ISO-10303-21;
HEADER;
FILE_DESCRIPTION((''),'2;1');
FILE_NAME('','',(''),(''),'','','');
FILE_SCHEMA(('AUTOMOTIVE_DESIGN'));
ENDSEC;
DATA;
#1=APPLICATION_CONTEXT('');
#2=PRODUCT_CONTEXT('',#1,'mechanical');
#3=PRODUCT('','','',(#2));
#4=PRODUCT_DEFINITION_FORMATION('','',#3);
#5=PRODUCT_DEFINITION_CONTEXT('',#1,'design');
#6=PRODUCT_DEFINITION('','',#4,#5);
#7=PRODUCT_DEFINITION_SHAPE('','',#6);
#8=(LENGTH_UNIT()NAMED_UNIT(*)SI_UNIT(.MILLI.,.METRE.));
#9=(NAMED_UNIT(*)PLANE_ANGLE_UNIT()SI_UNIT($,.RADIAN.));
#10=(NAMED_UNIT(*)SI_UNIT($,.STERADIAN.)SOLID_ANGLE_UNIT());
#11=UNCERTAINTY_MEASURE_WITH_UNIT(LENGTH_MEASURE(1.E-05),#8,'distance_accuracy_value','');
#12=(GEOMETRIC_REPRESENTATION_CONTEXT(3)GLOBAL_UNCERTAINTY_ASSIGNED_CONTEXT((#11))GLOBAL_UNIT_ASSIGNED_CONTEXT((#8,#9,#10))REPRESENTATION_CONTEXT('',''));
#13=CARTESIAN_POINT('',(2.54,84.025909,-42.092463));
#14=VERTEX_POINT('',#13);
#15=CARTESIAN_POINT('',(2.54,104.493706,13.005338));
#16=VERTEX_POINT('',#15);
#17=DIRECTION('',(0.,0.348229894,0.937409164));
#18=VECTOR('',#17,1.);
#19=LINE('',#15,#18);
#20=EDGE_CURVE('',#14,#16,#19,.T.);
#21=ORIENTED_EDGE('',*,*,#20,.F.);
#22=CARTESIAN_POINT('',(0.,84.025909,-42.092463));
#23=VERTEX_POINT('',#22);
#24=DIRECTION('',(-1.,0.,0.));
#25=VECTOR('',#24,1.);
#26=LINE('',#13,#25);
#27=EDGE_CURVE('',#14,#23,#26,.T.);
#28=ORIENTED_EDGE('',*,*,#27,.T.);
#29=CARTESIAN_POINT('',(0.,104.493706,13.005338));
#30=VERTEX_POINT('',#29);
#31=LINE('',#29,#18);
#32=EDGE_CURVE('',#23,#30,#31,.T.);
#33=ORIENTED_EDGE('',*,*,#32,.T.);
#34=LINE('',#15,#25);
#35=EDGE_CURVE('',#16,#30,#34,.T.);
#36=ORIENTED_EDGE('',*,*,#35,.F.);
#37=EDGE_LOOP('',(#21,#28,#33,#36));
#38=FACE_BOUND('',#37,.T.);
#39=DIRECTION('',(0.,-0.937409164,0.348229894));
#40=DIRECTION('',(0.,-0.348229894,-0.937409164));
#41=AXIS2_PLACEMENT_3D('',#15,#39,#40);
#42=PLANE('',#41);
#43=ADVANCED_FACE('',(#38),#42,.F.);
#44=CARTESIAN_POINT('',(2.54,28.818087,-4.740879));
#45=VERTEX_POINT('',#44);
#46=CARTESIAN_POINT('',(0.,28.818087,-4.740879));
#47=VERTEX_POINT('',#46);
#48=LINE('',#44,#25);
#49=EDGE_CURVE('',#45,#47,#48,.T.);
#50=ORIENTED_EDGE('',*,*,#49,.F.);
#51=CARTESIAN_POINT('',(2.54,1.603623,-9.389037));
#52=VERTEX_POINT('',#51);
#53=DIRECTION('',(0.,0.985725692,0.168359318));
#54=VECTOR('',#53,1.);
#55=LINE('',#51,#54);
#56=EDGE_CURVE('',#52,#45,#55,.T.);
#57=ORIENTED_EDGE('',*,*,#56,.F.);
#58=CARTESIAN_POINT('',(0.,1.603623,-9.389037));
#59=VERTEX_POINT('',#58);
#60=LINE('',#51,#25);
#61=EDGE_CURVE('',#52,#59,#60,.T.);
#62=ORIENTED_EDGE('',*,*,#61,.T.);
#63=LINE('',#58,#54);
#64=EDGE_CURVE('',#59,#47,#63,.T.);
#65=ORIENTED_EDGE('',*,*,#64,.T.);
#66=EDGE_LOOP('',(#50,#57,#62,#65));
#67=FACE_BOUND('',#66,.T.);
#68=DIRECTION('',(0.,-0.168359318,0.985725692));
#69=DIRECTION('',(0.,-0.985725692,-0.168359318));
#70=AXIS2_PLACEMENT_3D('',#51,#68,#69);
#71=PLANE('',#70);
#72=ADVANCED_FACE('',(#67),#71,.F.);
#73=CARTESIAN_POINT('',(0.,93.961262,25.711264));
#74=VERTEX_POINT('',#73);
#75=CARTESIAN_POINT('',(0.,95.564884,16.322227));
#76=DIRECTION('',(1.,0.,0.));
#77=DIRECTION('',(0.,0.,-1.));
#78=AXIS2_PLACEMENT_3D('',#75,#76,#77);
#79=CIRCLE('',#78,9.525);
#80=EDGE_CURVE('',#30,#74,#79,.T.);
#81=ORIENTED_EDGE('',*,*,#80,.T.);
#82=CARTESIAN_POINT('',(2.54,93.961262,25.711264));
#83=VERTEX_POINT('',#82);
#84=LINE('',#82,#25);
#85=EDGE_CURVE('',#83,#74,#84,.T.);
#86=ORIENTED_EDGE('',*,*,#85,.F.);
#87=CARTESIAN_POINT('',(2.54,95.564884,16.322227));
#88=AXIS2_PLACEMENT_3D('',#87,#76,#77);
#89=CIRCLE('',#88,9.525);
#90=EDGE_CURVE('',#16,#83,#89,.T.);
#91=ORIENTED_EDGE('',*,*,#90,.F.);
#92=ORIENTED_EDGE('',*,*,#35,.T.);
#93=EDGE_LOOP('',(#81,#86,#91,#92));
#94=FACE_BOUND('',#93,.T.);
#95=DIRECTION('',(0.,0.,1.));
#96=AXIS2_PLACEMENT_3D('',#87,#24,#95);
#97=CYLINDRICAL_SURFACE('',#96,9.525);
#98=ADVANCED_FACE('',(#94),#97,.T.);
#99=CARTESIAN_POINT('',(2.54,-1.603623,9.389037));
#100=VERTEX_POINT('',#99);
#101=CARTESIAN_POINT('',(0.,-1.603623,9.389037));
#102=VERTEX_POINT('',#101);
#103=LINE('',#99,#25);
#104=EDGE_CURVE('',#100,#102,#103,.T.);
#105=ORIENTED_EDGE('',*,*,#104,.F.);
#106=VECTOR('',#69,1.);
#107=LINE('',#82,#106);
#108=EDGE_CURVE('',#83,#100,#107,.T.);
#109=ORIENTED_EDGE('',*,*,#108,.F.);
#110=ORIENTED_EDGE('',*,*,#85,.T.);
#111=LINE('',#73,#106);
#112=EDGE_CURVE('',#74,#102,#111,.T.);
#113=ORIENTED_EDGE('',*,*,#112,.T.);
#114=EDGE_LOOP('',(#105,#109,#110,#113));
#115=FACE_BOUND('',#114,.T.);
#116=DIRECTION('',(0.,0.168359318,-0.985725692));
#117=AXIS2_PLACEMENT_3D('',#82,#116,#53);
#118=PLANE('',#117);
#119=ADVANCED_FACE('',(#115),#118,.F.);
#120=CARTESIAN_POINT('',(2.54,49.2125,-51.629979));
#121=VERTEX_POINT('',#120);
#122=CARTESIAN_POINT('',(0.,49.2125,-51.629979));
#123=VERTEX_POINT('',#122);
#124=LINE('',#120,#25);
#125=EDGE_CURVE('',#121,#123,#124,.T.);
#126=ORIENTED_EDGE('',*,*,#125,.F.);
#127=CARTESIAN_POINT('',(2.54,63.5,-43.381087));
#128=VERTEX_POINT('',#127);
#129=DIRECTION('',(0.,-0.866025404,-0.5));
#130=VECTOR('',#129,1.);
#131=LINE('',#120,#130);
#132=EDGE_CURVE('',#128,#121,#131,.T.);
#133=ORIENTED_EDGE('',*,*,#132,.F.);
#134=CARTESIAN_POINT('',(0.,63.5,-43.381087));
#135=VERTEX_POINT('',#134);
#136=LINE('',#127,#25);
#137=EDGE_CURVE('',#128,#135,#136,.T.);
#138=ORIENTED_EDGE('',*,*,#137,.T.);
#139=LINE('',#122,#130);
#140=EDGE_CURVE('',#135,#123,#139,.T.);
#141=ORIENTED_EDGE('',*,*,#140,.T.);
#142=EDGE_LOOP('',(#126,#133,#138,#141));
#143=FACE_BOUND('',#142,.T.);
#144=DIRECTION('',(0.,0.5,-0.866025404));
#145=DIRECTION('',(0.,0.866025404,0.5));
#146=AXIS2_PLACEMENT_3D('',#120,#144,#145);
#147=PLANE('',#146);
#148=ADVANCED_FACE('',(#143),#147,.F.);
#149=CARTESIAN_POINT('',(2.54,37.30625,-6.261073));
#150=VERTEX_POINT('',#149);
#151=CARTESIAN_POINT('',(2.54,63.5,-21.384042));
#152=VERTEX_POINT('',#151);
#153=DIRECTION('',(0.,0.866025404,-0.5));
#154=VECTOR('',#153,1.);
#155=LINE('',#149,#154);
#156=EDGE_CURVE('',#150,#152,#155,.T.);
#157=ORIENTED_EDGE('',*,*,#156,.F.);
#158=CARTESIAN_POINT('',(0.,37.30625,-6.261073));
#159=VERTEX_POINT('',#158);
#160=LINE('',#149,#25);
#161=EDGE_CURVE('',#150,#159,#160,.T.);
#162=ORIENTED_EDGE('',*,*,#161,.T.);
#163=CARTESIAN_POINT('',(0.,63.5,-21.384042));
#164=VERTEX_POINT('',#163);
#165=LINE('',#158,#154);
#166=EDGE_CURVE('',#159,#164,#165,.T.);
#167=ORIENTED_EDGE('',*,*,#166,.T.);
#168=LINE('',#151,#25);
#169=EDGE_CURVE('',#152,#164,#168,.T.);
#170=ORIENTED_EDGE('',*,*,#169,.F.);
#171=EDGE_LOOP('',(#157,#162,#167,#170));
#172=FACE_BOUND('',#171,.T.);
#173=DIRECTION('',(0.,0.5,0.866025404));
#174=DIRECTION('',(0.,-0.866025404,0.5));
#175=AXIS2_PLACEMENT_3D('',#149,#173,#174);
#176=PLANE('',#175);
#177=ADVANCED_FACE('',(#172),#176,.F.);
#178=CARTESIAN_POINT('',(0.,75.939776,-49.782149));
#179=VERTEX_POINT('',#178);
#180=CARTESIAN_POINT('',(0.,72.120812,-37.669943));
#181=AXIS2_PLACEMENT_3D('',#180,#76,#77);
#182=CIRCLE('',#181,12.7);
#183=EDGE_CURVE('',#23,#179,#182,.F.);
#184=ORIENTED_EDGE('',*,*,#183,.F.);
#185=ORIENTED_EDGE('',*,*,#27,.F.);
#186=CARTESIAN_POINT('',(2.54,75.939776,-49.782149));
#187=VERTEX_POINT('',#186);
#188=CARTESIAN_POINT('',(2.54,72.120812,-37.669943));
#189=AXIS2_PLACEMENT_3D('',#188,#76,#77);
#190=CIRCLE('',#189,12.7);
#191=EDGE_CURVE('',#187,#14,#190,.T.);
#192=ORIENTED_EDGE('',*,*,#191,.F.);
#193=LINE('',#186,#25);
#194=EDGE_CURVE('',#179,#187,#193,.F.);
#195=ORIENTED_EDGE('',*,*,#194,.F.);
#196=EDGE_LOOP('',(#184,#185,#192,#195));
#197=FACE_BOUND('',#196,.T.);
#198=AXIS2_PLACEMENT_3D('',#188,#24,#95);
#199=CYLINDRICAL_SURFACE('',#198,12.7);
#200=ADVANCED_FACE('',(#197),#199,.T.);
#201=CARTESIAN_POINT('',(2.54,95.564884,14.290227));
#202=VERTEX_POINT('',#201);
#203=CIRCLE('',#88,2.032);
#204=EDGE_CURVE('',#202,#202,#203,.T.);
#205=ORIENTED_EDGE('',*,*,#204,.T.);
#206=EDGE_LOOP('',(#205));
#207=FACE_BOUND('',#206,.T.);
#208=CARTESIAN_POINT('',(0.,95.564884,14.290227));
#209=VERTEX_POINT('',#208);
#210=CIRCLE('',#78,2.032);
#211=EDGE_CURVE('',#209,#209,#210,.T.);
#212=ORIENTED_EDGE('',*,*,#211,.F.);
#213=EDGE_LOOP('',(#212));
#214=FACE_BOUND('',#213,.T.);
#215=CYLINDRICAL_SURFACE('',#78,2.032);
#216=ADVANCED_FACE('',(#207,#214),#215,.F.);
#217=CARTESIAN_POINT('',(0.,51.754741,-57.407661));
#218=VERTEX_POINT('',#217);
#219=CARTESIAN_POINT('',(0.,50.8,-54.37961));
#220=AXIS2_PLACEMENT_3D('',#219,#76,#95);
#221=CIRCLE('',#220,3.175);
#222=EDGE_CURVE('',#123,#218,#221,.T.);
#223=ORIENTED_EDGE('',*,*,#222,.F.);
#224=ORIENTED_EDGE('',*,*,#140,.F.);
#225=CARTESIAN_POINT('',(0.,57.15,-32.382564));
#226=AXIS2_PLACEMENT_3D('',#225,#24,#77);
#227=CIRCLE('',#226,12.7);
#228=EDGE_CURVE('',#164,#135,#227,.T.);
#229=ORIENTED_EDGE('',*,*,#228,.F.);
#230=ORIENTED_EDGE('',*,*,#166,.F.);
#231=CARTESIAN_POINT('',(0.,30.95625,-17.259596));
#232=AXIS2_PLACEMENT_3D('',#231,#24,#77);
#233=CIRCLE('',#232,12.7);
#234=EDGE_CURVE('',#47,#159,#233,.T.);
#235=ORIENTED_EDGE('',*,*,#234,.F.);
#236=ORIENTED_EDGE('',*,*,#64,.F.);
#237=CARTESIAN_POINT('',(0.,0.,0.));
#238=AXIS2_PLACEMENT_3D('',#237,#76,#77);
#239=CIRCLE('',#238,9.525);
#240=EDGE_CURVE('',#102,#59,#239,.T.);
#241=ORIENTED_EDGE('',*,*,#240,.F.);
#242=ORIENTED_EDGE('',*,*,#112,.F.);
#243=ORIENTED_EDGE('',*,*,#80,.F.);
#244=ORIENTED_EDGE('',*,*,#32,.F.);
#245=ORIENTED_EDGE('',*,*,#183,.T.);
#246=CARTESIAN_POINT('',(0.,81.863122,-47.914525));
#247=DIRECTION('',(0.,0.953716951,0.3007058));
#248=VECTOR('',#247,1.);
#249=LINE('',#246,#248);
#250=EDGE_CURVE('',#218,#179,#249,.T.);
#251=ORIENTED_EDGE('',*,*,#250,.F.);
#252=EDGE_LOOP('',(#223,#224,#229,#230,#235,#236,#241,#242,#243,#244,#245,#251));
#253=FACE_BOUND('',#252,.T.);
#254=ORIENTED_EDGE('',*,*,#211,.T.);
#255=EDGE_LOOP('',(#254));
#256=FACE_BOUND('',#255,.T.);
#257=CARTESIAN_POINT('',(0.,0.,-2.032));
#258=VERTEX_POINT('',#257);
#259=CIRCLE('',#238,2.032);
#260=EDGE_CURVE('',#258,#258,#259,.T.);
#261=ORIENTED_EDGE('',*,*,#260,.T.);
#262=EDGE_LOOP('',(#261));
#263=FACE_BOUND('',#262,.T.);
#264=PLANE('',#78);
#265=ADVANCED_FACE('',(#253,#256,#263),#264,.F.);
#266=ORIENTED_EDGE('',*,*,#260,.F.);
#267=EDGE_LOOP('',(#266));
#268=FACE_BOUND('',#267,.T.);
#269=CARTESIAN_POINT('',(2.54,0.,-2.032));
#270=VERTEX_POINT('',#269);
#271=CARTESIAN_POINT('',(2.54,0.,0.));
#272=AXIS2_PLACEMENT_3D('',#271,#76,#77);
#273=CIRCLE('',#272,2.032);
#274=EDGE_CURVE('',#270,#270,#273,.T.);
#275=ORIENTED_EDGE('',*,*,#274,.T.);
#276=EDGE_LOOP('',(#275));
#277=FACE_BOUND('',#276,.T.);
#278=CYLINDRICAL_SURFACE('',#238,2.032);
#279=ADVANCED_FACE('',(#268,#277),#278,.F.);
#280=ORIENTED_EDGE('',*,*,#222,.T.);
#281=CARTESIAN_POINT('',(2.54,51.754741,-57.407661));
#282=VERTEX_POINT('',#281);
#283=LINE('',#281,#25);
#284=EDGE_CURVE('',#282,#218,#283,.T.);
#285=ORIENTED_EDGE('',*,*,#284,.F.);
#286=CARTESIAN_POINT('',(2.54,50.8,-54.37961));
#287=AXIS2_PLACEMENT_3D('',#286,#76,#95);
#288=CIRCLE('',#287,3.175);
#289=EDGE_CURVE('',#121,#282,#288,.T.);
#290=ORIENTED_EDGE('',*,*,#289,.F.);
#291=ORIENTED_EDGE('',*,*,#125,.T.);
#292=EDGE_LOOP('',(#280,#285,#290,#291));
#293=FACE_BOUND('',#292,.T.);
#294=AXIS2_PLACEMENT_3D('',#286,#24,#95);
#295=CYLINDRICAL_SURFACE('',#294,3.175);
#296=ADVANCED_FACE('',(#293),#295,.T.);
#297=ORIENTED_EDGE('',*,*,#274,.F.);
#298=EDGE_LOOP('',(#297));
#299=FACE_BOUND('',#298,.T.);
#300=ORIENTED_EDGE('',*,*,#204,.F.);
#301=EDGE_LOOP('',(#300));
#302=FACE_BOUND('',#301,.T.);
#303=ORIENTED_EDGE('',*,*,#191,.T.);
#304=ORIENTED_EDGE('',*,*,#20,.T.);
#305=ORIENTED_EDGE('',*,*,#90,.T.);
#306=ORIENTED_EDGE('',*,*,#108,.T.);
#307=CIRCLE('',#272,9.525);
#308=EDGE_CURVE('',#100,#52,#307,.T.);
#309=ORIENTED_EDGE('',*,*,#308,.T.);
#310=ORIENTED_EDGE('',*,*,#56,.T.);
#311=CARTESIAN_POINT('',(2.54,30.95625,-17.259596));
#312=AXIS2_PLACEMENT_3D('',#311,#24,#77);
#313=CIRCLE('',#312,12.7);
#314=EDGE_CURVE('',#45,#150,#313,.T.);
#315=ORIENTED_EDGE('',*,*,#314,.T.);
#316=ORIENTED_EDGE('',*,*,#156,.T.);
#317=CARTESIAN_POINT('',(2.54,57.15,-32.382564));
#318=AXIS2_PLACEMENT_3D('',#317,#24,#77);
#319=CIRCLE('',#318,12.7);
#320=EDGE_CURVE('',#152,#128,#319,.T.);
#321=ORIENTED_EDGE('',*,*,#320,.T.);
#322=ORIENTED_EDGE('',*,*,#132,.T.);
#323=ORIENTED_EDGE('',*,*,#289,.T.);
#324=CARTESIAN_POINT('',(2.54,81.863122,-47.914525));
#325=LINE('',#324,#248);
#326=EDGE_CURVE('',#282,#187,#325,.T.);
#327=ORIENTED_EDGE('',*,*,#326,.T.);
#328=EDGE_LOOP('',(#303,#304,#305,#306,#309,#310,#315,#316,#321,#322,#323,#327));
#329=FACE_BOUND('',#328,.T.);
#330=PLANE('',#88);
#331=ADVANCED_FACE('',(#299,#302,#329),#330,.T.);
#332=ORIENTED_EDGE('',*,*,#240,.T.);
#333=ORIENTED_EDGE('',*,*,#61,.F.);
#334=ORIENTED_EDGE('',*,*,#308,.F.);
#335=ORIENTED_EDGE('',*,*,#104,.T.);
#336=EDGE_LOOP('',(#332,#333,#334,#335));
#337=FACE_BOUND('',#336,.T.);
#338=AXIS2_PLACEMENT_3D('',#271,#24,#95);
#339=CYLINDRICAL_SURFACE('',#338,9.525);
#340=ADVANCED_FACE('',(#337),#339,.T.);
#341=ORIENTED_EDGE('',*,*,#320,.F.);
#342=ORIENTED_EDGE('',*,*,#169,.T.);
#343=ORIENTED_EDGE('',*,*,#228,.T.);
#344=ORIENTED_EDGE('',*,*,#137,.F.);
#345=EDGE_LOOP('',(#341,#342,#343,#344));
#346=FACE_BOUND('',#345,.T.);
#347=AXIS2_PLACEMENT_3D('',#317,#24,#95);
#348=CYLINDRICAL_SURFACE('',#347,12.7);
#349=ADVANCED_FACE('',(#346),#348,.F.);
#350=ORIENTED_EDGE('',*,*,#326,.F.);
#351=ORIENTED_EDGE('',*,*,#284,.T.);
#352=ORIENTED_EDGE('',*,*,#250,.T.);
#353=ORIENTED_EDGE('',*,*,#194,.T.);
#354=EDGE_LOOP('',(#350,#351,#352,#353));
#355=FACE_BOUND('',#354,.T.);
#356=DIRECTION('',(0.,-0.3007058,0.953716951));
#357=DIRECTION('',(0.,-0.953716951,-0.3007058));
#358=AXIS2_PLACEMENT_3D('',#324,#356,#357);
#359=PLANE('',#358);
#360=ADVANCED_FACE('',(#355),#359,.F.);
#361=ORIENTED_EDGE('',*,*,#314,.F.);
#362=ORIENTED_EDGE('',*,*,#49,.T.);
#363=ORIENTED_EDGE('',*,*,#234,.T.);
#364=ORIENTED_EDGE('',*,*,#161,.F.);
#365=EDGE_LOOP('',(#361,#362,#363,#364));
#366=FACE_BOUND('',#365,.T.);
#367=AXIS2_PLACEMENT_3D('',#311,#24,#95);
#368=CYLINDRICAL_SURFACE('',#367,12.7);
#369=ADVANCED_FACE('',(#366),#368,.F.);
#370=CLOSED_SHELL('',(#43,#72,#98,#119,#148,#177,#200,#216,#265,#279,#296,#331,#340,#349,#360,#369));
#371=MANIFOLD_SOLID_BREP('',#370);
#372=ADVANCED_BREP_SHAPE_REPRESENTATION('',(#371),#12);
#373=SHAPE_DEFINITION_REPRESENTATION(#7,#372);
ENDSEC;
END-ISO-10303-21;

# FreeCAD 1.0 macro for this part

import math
import FreeCAD as App
import Part
import Sketcher
Q = App.Units.Quantity


def edges_at(feature, points):
    """Names of the edges that pass closest to the given points."""
    edges = feature.Shape.Edges
    near = lambda p: min(range(len(edges)), key=lambda i: edges[i].distToShape(Part.Vertex(*p))[0])
    return sorted({f"Edge{near(p) + 1}" for p in points})

doc = App.newDocument("Part")
body = doc.addObject("PartDesign::Body", "Body")

sketch1 = doc.addObject("Sketcher::SketchObject", "Sketch")
body.addObject(sketch1)
sketch1.AttachmentSupport = (doc.YZ_Plane, [""])
sketch1.MapMode = "FlatFace"
sketch1.addGeometry(Part.LineSegment(App.Vector(94, 25.7, 0), App.Vector(-1.6, 9.4, 0)), False)
sketch1.addGeometry(Part.ArcOfCircle(Part.Circle(App.Vector(0, 0, 0), App.Vector(0, 0, 1), 9.5), math.radians(100), math.radians(280)), False)
sketch1.addGeometry(Part.LineSegment(App.Vector(1.6, -9.4, 0), App.Vector(28.8, -4.7, 0)), False)
sketch1.addGeometry(Part.ArcOfCircle(Part.Circle(App.Vector(31, -17.3, 0), App.Vector(0, 0, 1), 12.7), math.radians(60), math.radians(100)), False)
sketch1.addGeometry(Part.LineSegment(App.Vector(37.3, -6.3, 0), App.Vector(63.5, -21.4, 0)), False)
sketch1.addGeometry(Part.ArcOfCircle(Part.Circle(App.Vector(57.1, -32.4, 0), App.Vector(0, 0, 1), 12.7), math.radians(-60), math.radians(60)), False)
sketch1.addGeometry(Part.LineSegment(App.Vector(63.5, -43.4, 0), App.Vector(49.2, -51.6, 0)), False)
sketch1.addGeometry(Part.ArcOfCircle(Part.Circle(App.Vector(50.8, -54.4, 0), App.Vector(0, 0, 1), 3.2), math.radians(120), math.radians(287)), False)
sketch1.addGeometry(Part.LineSegment(App.Vector(51.8, -57.4, 0), App.Vector(81.9, -47.9, 0)), False)
sketch1.addGeometry(Part.LineSegment(App.Vector(81.9, -47.9, 0), App.Vector(104.5, 13, 0)), False)
sketch1.addGeometry(Part.ArcOfCircle(Part.Circle(App.Vector(95.6, 16.3, 0), App.Vector(0, 0, 1), 9.5), math.radians(-20), math.radians(100)), False)
sketch1.addConstraint(Sketcher.Constraint("Tangent", 0, 2, 1, 1))
sketch1.addConstraint(Sketcher.Constraint("Tangent", 1, 2, 2, 1))
sketch1.addConstraint(Sketcher.Constraint("Tangent", 2, 2, 3, 2))
sketch1.addConstraint(Sketcher.Constraint("Tangent", 3, 1, 4, 1))
sketch1.addConstraint(Sketcher.Constraint("Tangent", 4, 2, 5, 2))
sketch1.addConstraint(Sketcher.Constraint("Tangent", 5, 1, 6, 1))
sketch1.addConstraint(Sketcher.Constraint("Tangent", 6, 2, 7, 1))
sketch1.addConstraint(Sketcher.Constraint("Tangent", 7, 2, 8, 1))
sketch1.addConstraint(Sketcher.Constraint("Coincident", 8, 2, 9, 1))
sketch1.addConstraint(Sketcher.Constraint("Tangent", 9, 2, 10, 1))
sketch1.addConstraint(Sketcher.Constraint("Tangent", 10, 2, 0, 1))
sketch1.addConstraint(Sketcher.Constraint("Coincident", 1, 3, -1, 1))
sketch1.addConstraint(Sketcher.Constraint("Equal", 3, 5))
sketch1.addConstraint(Sketcher.Constraint("Equal", 1, 10))
sketch1.addConstraint(Sketcher.Constraint("Parallel", 0, 2))
sketch1.addConstraint(Sketcher.Constraint("Vertical", 4, 2, 5, 1))
sketch1.addConstraint(Sketcher.Constraint("Radius", 3, Q("0.5 in")))
sketch1.addConstraint(Sketcher.Constraint("DistanceX", -1, 1, 7, 3, Q("2 in")))
sketch1.addConstraint(Sketcher.Constraint("Angle", 4, Q("-30 deg")))
sketch1.addConstraint(Sketcher.Constraint("Radius", 1, Q("0.375 in")))
sketch1.addConstraint(Sketcher.Constraint("Radius", 7, Q("0.125 in")))
sketch1.addConstraint(Sketcher.Constraint("DistanceX", -1, 1, 4, 2, Q("2.5 in")))
sketch1.addConstraint(Sketcher.Constraint("Angle", 8, Q("17.5 deg")))
sketch1.addConstraint(Sketcher.Constraint("DistanceX", -1, 1, 3, 3, Q("1.21875 in")))
sketch1.addConstraint(Sketcher.Constraint("DistanceY", 5, 3, 0, 2, 41.771601))
sketch1.addConstraint(Sketcher.Constraint("DistanceY", 5, 3, 9, 2, 45.387902))
sketch1.addConstraint(Sketcher.Constraint("Distance", 0, 96.948761))
pad1 = doc.addObject("PartDesign::Pad", "Pad")
body.addObject(pad1)
pad1.Profile = sketch1
pad1.Length = Q("0.1 in")

sketch2 = doc.addObject("Sketcher::SketchObject", "Sketch001")
body.addObject(sketch2)
sketch2.AttachmentSupport = (doc.YZ_Plane, [""])
sketch2.MapMode = "FlatFace"
sketch2.AttachmentOffset = App.Placement(App.Vector(0, 0, 0.1 * 25.4), App.Rotation())
sketch2.addGeometry(Part.Circle(App.Vector(0, 0, 0), App.Vector(0, 0, 1), 2), False)
sketch2.addGeometry(Part.Circle(App.Vector(95.6, 16.3, 0), App.Vector(0, 0, 1), 2), False)
sketch2.addConstraint(Sketcher.Constraint("Coincident", 0, 3, -1, 1))
sketch2.addConstraint(Sketcher.Constraint("Equal", 0, 1))
sketch2.addConstraint(Sketcher.Constraint("Diameter", 0, Q("0.16 in")))
sketch2.addConstraint(Sketcher.Constraint("DistanceX", -1, 1, 1, 3, 95.564884))
sketch2.addConstraint(Sketcher.Constraint("DistanceY", -1, 1, 1, 3, 16.322227))
pocket1 = doc.addObject("PartDesign::Pocket", "Pocket")
body.addObject(pocket1)
pocket1.Profile = sketch2
pocket1.Type = "ThroughAll"
doc.recompute()

fillet = doc.addObject("PartDesign::Fillet", "Fillet")
body.addObject(fillet)
fillet.Base = (pocket1, edges_at(pocket1, [(1.27, 81.863, -47.915)]))
fillet.Radius = Q("0.5 in")

doc.recompute()
